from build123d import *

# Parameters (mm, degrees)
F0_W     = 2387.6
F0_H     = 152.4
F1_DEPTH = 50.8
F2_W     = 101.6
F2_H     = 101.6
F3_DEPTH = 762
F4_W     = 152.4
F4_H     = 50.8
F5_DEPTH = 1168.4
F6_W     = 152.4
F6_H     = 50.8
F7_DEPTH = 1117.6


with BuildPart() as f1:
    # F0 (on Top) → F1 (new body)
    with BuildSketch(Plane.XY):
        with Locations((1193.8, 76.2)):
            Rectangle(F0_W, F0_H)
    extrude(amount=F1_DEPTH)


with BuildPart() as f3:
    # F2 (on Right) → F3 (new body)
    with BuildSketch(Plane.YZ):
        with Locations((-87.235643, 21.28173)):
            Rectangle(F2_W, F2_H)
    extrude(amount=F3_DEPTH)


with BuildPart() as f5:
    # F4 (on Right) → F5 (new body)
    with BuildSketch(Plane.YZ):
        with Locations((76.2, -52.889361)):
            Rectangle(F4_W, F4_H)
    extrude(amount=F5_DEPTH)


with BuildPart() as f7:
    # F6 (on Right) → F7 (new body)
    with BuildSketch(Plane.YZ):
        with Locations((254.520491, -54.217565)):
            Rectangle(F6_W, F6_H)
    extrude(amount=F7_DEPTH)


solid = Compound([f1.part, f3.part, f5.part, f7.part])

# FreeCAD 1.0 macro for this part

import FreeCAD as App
import Part
import Sketcher
Q = App.Units.Quantity


def add_polygon(sketch, points):
    """Adds a closed chain of lines whose ends are joined by coincident constraints."""
    first, n = sketch.GeometryCount, len(points)
    for a, b in zip(points, points[1:] + points[:1]):
        sketch.addGeometry(Part.LineSegment(App.Vector(*a, 0), App.Vector(*b, 0)), False)
    for i in range(n):
        sketch.addConstraint(Sketcher.Constraint("Coincident", first + i, 2, first + (i + 1) % n, 1))

doc = App.newDocument("Part")
body = doc.addObject("PartDesign::Body", "Body")

# Sketch on XY plane
sketch1 = body.newObject("Sketcher::SketchObject", "Sketch")
sketch1.AttachmentSupport = (doc.getObject("XY_Plane"), [""])
sketch1.MapMode = "FlatFace"
add_polygon(sketch1, [(0, 152.4), (0, 0), (2387.6, 0), (2387.6, 152.4)])  # lines 0-3
sketch1.addConstraint(Sketcher.Constraint("Vertical", 0))
sketch1.addConstraint(Sketcher.Constraint("Horizontal", 1))
sketch1.addConstraint(Sketcher.Constraint("Vertical", 2))
sketch1.addConstraint(Sketcher.Constraint("Horizontal", 3))
sketch1.addConstraint(Sketcher.Constraint("Coincident", 0, 2, -1, 1))
sketch1.addConstraint(Sketcher.Constraint("DistanceX", 1, 1, 1, 2, Q("94 in")))
sketch1.addConstraint(Sketcher.Constraint("DistanceY", 0, 2, 0, 1, Q("6 in")))
pad1 = body.newObject("PartDesign::Pad", "Pad")
pad1.Profile = sketch1
pad1.Length = Q("2 in")
body2 = doc.addObject("PartDesign::Body", "Body001")

# Sketch on YZ plane
sketch2 = body2.newObject("Sketcher::SketchObject", "Sketch001")
sketch2.AttachmentSupport = (doc.getObject("YZ_Plane001"), [""])
sketch2.MapMode = "FlatFace"
add_polygon(sketch2, [(-138.035643, 72.08173), (-138.035643, -29.51827), (-36.435643, -29.51827), (-36.435643, 72.08173)])  # lines 0-3
sketch2.addConstraint(Sketcher.Constraint("Vertical", 0))
sketch2.addConstraint(Sketcher.Constraint("Horizontal", 1))
sketch2.addConstraint(Sketcher.Constraint("Vertical", 2))
sketch2.addConstraint(Sketcher.Constraint("Horizontal", 3))
sketch2.addConstraint(Sketcher.Constraint("Equal", 3, 0))
sketch2.addConstraint(Sketcher.Constraint("DistanceX", 1, 1, 1, 2, Q("4 in")))
sketch2.addConstraint(Sketcher.Constraint("DistanceY", 0, 2, -1, 1, Q("29.51827 mm")))
sketch2.addConstraint(Sketcher.Constraint("DistanceX", 0, 2, -1, 1, Q("138.035643 mm")))
pad2 = body2.newObject("PartDesign::Pad", "Pad001")
pad2.Profile = sketch2
pad2.Length = Q("30 in")
body3 = doc.addObject("PartDesign::Body", "Body002")

# Sketch on YZ plane
sketch3 = body3.newObject("Sketcher::SketchObject", "Sketch002")
sketch3.AttachmentSupport = (doc.getObject("YZ_Plane002"), [""])
sketch3.MapMode = "FlatFace"
add_polygon(sketch3, [(0, -27.489361), (0, -78.289361), (152.4, -78.289361), (152.4, -27.489361)])  # lines 0-3
sketch3.addConstraint(Sketcher.Constraint("Vertical", 0))
sketch3.addConstraint(Sketcher.Constraint("Horizontal", 1))
sketch3.addConstraint(Sketcher.Constraint("Vertical", 2))
sketch3.addConstraint(Sketcher.Constraint("Horizontal", 3))
sketch3.addConstraint(Sketcher.Constraint("PointOnObject", 0, 2, -2))
sketch3.addConstraint(Sketcher.Constraint("DistanceX", 1, 1, 1, 2, Q("6 in")))
sketch3.addConstraint(Sketcher.Constraint("DistanceY", 0, 2, 0, 1, Q("2 in")))
sketch3.addConstraint(Sketcher.Constraint("DistanceY", 0, 2, -1, 1, Q("78.289361 mm")))
pad3 = body3.newObject("PartDesign::Pad", "Pad002")
pad3.Profile = sketch3
pad3.Length = Q("46 in")
body4 = doc.addObject("PartDesign::Body", "Body003")

# Sketch on YZ plane
sketch4 = body4.newObject("Sketcher::SketchObject", "Sketch003")
sketch4.AttachmentSupport = (doc.getObject("YZ_Plane003"), [""])
sketch4.MapMode = "FlatFace"
add_polygon(sketch4, [(178.320491, -28.817565), (178.320491, -79.617565), (330.720491, -79.617565), (330.720491, -28.817565)])  # lines 0-3
sketch4.addConstraint(Sketcher.Constraint("Vertical", 0))
sketch4.addConstraint(Sketcher.Constraint("Horizontal", 1))
sketch4.addConstraint(Sketcher.Constraint("Vertical", 2))
sketch4.addConstraint(Sketcher.Constraint("Horizontal", 3))
sketch4.addConstraint(Sketcher.Constraint("DistanceX", 1, 1, 1, 2, Q("6 in")))
sketch4.addConstraint(Sketcher.Constraint("DistanceY", 0, 2, 0, 1, Q("2 in")))
sketch4.addConstraint(Sketcher.Constraint("DistanceX", -1, 1, 0, 2, Q("178.320491 mm")))
sketch4.addConstraint(Sketcher.Constraint("DistanceY", 0, 2, -1, 1, Q("79.617565 mm")))
pad4 = body4.newObject("PartDesign::Pad", "Pad003")
pad4.Profile = sketch4
pad4.Length = Q("44 in")

doc.recompute()
